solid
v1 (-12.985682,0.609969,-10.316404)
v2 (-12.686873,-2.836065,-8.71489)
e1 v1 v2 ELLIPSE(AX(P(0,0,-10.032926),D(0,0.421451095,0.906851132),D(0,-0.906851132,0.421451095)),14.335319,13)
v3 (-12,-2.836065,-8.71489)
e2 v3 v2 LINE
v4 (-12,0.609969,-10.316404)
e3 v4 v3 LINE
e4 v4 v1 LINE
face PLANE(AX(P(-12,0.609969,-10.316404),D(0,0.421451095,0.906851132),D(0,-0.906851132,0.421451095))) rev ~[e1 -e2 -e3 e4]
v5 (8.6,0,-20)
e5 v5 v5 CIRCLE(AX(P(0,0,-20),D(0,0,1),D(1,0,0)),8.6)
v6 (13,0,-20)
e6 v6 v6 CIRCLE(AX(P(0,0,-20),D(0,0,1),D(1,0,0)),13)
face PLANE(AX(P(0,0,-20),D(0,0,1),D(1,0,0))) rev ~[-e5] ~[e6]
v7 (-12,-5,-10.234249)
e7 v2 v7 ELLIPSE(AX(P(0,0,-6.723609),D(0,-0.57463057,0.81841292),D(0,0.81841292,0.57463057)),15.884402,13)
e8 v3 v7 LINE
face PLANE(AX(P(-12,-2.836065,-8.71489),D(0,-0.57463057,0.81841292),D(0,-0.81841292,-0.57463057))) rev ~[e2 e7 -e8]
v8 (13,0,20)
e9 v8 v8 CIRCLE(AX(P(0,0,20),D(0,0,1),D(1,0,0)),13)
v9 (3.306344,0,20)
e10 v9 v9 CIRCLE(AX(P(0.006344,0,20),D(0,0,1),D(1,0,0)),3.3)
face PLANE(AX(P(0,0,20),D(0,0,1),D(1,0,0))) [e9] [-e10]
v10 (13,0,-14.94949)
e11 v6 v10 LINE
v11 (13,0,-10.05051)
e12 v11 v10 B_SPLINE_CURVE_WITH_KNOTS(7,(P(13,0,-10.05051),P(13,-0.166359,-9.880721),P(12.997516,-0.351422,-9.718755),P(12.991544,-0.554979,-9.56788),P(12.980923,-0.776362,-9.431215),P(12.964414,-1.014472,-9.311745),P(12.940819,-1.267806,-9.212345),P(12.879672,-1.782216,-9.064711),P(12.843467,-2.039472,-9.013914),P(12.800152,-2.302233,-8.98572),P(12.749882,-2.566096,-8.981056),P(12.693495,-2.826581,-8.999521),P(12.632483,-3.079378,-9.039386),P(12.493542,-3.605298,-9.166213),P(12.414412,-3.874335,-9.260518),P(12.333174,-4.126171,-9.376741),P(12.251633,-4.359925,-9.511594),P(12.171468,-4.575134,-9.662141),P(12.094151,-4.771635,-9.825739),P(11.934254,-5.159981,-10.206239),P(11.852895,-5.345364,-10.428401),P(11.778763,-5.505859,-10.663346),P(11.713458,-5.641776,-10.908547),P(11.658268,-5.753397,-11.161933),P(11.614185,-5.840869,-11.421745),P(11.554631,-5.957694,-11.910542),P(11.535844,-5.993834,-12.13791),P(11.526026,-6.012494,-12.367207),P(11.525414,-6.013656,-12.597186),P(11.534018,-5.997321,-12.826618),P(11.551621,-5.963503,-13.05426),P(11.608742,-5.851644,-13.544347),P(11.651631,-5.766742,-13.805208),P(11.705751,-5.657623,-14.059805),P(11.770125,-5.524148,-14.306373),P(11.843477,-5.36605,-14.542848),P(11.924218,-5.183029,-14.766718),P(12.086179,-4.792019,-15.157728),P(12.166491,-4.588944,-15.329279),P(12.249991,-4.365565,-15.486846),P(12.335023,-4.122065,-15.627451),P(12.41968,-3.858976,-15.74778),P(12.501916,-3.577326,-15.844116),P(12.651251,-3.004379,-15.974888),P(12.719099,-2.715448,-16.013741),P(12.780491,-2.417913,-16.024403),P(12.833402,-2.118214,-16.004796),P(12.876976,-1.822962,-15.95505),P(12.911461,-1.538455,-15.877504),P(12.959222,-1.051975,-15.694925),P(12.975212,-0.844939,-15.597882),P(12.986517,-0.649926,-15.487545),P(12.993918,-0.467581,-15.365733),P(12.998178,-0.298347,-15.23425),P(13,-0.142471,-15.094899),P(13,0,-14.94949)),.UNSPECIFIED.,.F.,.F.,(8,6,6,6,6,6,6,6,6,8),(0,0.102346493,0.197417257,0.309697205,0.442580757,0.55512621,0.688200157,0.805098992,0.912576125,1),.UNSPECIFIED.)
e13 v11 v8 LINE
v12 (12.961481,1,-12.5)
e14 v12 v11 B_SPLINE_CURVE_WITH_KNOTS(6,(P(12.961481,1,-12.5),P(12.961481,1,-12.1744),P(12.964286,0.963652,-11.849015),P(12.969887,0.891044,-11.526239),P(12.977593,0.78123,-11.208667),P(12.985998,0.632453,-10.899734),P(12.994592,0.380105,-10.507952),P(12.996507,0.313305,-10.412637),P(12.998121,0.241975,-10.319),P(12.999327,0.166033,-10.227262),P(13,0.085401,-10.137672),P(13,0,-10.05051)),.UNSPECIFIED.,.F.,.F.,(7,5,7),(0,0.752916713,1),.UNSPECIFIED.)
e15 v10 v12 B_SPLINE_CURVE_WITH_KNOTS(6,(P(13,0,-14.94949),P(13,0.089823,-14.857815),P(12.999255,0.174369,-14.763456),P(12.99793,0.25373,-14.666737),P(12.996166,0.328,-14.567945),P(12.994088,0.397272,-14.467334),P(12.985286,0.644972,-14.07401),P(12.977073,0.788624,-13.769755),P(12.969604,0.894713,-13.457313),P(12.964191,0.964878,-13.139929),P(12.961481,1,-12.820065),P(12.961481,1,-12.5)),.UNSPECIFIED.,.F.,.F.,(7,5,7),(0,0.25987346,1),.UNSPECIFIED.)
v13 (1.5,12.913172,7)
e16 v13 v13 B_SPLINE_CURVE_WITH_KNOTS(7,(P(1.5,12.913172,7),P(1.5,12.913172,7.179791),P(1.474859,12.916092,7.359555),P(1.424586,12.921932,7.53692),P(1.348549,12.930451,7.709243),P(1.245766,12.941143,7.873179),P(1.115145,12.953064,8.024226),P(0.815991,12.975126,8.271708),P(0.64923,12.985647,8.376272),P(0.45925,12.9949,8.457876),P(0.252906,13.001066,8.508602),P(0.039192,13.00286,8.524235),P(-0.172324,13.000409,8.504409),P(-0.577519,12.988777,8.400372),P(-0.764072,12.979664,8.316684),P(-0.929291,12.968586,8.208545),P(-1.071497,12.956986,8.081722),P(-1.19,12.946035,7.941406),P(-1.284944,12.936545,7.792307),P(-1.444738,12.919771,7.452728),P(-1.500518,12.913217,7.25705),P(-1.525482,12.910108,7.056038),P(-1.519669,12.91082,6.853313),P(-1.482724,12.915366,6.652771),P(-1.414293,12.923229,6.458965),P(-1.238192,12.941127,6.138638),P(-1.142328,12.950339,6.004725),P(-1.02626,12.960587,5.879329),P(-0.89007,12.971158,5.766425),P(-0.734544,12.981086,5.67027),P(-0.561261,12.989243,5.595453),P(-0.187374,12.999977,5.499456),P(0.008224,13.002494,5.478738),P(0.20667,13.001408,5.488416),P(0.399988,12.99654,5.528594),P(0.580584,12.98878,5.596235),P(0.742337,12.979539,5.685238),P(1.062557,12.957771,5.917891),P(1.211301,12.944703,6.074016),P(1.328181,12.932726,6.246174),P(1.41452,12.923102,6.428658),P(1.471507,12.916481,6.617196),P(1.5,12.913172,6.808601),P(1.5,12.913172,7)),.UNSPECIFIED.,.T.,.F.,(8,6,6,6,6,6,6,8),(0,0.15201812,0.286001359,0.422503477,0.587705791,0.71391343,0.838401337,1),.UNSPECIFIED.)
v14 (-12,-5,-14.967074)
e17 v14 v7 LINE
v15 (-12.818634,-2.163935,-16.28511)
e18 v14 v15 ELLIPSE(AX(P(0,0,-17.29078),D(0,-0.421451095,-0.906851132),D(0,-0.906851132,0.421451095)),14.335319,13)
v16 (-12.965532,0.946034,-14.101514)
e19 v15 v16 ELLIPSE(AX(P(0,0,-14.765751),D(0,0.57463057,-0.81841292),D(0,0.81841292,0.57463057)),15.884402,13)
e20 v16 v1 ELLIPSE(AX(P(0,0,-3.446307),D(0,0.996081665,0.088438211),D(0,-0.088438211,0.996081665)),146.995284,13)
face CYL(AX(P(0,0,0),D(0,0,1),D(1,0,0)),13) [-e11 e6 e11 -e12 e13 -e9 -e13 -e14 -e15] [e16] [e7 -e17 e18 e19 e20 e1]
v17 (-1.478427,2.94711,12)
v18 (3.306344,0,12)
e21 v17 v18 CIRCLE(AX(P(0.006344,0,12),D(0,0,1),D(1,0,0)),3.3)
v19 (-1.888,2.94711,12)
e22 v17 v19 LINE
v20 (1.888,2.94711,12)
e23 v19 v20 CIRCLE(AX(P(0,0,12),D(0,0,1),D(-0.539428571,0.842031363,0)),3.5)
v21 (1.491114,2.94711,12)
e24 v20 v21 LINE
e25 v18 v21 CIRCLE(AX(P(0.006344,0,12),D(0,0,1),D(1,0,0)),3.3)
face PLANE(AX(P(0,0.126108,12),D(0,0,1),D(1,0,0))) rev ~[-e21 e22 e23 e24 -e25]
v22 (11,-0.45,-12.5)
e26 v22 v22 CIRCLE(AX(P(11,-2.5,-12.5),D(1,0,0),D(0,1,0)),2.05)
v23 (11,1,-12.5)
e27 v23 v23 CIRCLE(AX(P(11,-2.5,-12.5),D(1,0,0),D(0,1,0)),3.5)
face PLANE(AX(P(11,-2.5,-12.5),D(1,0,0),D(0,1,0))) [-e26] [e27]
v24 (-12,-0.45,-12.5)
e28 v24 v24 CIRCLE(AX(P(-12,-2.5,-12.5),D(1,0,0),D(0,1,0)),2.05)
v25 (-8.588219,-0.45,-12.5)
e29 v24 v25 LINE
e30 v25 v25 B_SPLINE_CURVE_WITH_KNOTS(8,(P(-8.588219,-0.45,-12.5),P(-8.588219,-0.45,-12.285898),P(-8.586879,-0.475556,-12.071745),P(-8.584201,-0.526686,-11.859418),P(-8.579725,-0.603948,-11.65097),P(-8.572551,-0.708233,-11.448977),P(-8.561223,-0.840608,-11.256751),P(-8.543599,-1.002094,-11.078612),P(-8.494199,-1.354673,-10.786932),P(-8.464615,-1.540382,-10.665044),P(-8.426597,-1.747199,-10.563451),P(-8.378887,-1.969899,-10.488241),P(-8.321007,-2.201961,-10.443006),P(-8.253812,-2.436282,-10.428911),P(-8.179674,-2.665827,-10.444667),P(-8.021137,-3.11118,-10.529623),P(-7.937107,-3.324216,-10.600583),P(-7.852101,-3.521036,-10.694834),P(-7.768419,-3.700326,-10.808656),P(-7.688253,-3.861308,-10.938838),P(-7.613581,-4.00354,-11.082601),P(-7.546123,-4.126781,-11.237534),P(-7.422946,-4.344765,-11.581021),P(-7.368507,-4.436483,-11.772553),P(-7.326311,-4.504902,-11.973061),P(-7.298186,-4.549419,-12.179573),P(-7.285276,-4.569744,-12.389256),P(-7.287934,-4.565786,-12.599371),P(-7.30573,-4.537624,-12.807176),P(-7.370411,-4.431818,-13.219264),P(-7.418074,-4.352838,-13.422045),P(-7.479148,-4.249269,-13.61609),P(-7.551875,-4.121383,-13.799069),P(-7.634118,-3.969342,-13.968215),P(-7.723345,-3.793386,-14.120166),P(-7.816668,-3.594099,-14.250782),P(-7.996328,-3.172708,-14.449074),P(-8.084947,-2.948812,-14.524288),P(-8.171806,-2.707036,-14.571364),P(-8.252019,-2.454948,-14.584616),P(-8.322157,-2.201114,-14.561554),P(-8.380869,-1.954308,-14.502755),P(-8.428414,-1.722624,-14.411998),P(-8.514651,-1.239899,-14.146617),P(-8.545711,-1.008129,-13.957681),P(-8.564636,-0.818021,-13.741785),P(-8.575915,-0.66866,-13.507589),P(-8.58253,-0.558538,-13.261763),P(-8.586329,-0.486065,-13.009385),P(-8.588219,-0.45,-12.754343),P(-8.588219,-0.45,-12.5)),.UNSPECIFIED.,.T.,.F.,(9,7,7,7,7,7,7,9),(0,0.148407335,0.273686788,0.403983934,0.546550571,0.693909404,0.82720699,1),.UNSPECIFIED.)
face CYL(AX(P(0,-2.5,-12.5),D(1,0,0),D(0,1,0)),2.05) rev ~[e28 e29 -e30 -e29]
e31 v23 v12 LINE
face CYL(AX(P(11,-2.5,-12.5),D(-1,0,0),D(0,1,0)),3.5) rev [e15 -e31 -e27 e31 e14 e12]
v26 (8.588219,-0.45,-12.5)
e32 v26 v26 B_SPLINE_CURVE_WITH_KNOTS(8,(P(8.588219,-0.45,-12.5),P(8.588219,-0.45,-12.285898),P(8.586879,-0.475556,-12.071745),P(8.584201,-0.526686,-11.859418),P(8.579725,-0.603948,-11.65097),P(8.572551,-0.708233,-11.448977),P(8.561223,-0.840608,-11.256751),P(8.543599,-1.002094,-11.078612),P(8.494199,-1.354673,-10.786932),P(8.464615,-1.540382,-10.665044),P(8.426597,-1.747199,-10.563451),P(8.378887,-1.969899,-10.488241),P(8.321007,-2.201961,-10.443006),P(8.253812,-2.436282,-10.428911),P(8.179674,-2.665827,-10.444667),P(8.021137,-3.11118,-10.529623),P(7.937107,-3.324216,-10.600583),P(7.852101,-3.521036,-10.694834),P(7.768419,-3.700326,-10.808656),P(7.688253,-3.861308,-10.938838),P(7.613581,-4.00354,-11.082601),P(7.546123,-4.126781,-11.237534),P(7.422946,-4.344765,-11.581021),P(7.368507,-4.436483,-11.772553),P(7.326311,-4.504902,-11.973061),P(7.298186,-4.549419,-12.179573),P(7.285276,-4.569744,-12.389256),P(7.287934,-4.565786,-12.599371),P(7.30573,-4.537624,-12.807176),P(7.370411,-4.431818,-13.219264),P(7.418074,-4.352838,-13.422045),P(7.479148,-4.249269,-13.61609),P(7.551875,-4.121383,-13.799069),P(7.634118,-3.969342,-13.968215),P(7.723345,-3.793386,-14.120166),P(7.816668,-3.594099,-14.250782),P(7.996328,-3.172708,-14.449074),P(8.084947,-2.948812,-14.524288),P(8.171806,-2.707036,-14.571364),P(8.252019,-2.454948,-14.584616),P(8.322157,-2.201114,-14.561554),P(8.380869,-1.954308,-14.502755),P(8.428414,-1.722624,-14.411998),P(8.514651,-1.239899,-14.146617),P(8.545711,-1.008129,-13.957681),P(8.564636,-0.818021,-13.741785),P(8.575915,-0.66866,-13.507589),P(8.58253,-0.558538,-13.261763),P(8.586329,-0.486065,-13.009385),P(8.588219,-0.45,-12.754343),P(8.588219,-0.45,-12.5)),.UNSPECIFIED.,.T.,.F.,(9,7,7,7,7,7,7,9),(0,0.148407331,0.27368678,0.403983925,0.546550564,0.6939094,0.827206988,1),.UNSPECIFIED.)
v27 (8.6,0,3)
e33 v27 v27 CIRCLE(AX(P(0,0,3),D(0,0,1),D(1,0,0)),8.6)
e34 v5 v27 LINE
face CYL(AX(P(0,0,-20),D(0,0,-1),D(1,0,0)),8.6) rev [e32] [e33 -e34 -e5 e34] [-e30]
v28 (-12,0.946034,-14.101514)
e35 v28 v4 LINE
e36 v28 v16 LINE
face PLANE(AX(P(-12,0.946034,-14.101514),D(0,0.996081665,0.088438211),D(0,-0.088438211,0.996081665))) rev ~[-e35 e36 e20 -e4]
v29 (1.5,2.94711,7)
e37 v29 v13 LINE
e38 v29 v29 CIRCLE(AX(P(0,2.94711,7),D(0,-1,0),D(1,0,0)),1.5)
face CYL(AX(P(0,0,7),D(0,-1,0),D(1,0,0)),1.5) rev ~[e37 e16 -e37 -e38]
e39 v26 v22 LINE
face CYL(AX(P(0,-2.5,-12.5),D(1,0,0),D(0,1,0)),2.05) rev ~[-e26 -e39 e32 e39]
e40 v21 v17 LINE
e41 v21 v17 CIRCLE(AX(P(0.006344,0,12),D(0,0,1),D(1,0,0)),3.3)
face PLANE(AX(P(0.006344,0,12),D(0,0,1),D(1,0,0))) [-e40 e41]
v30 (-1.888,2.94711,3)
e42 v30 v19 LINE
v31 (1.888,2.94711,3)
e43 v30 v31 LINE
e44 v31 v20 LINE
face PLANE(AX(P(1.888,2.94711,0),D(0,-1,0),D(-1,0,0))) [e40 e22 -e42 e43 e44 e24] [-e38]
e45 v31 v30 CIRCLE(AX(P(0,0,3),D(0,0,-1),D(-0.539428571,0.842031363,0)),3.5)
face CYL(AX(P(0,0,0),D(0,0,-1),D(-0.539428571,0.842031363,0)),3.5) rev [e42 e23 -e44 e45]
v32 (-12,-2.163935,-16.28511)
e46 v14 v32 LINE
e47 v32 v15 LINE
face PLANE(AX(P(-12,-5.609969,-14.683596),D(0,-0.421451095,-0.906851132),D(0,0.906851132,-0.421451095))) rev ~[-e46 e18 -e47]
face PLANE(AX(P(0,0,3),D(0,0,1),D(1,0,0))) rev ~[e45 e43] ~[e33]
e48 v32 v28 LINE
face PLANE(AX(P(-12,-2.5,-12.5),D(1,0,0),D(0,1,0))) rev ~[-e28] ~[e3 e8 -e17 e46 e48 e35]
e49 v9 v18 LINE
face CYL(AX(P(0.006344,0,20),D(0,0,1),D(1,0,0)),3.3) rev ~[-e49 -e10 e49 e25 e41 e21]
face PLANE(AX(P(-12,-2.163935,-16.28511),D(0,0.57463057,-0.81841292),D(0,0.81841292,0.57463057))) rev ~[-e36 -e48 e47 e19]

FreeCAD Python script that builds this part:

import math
import FreeCAD as App
import Part
import Sketcher

V = App.Vector
Q = App.Units.Quantity


def add_polygon(sketch, points):
    """Adds a closed chain of lines whose ends are joined by coincident constraints."""
    first, n = sketch.GeometryCount, len(points)
    for a, b in zip(points, points[1:] + points[:1]):
        sketch.addGeometry(Part.LineSegment(App.Vector(*a, 0), App.Vector(*b, 0)), False)
    for i in range(n):
        sketch.addConstraint(Sketcher.Constraint("Coincident", first + i, 2, first + (i + 1) % n, 1))

doc = App.newDocument("Part")
params = doc.addObject("Spreadsheet::Sheet", "Params")
for row, (alias, value) in enumerate([
    ("sketch1_diameter", "26 mm"),
    ("pad1_length", "40 mm"),
    ("sketch2_diameter", "17.2 mm"),
    ("pocket1_length", "23 mm"),
    ("sketch3_diameter", "6.6 mm"),
    ("pocket2_length", "8 mm"),
    ("sketch4_radius", "3.5 mm"),
    ("pocket3_length", "12 mm"),
    ("sketch5_diameter", "4.1 mm"),
    ("pocket4_length", "30 mm"),
    ("sketch6_diameter", "3 mm"),
    ("pocket5_length", "25 mm"),
    ("sketch7_diameter", "7 mm"),
    ("pocket6_length", "5 mm"),
    ("sketch8_length", "3.8 mm"),
    ("pocket7_length", "3 mm"),
], start=1):
    params.set(f"A{row}", alias)
    params.set(f"B{row}", "=" + value)
    params.setAlias(f"B{row}", alias)

body = doc.addObject("PartDesign::Body", "Body")

sketch1 = doc.addObject("Sketcher::SketchObject", "Sketch")
body.addObject(sketch1)
sketch1.AttachmentSupport = (doc.XY_Plane, [""])
sketch1.MapMode = "FlatFace"
sketch1.addGeometry(Part.Circle(V(0, 0, 0), V(0, 0, 1), 13), False)
sketch1.addConstraint([
    Sketcher.Constraint("Coincident", 0, 3, -1, 1),
    Sketcher.Constraint("Diameter", 0, Q("26 mm")),
])
sketch1.setExpression("Constraints[1]", "Params.sketch1_diameter")
pad1 = doc.addObject("PartDesign::Pad", "Pad")
body.addObject(pad1)
pad1.Profile = sketch1
pad1.setExpression("Length", "Params.pad1_length")
pad1.Midplane = True

sketch2 = doc.addObject("Sketcher::SketchObject", "Sketch001")
body.addObject(sketch2)
sketch2.AttachmentSupport = (doc.XY_Plane, [""])
sketch2.MapMode = "FlatFace"
sketch2.AttachmentOffset = App.Placement(V(0, 0, -20), App.Rotation())
sketch2.addGeometry(Part.Circle(V(0, 0, 0), V(0, 0, 1), 9), False)
sketch2.addConstraint([
    Sketcher.Constraint("Coincident", 0, 3, -1, 1),
    Sketcher.Constraint("Diameter", 0, Q("17.2 mm")),
])
sketch2.setExpression("Constraints[1]", "Params.sketch2_diameter")
pocket1 = doc.addObject("PartDesign::Pocket", "Pocket")
body.addObject(pocket1)
pocket1.Profile = sketch2
pocket1.setExpression("Length", "Params.pocket1_length")
pocket1.Reversed = True

sketch3 = doc.addObject("Sketcher::SketchObject", "Sketch002")
body.addObject(sketch3)
sketch3.AttachmentSupport = (doc.XY_Plane, [""])
sketch3.MapMode = "FlatFace"
sketch3.AttachmentOffset = App.Placement(V(0, 0, 20), App.Rotation())
sketch3.addGeometry(Part.Circle(V(0, 0, 0), V(0, 0, 1), 3.3), False)
sketch3.addConstraint([
    Sketcher.Constraint("PointOnObject", 0, 3, -1),
    Sketcher.Constraint("Diameter", 0, Q("6.6 mm")),
    Sketcher.Constraint("DistanceX", -1, 1, 0, 3, Q("0.006344 mm")),
])
sketch3.setExpression("Constraints[1]", "Params.sketch3_diameter")
pocket2 = doc.addObject("PartDesign::Pocket", "Pocket001")
body.addObject(pocket2)
pocket2.Profile = sketch3
pocket2.setExpression("Length", "Params.pocket2_length")

sketch4 = doc.addObject("Sketcher::SketchObject", "Sketch003")
body.addObject(sketch4)
sketch4.AttachmentSupport = (doc.XY_Plane, [""])
sketch4.MapMode = "FlatFace"
sketch4.addGeometry([
    Part.LineSegment(V(1.9, 2.9, 0), V(-1.9, 2.9, 0)),
    Part.ArcOfCircle(Part.Circle(V(0, 0, 0), V(0, 0, 1), 3.5), math.radians(123), math.radians(417)),
], False)
sketch4.addConstraint([
    Sketcher.Constraint("Coincident", 0, 1, 1, 2),
    Sketcher.Constraint("Coincident", 1, 1, 0, 2),
    Sketcher.Constraint("Horizontal", 0),
    Sketcher.Constraint("Coincident", 1, 3, -1, 1),
    Sketcher.Constraint("Radius", 1, Q("3.5 mm")),
    Sketcher.Constraint("DistanceX", 0, 2, 0, 1, Q("3.776 mm")),
])
sketch4.setExpression("Constraints[4]", "Params.sketch4_radius")
pocket3 = doc.addObject("PartDesign::Pocket", "Pocket002")
body.addObject(pocket3)
pocket3.Profile = sketch4
pocket3.setExpression("Length", "Params.pocket3_length")
pocket3.Reversed = True

sketch5 = doc.addObject("Sketcher::SketchObject", "Sketch004")
body.addObject(sketch5)
sketch5.AttachmentSupport = (doc.YZ_Plane, [""])
sketch5.MapMode = "FlatFace"
sketch5.addGeometry(Part.Circle(V(-2.5, -12.5, 0), V(0, 0, 1), 2), False)
sketch5.addConstraint([
    Sketcher.Constraint("Diameter", 0, Q("4.1 mm")),
    Sketcher.Constraint("DistanceX", 0, 3, -1, 1, Q("2.5 mm")),
    Sketcher.Constraint("DistanceY", 0, 3, -1, 1, Q("12.5 mm")),
])
sketch5.setExpression("Constraints[0]", "Params.sketch5_diameter")
pocket4 = doc.addObject("PartDesign::Pocket", "Pocket003")
body.addObject(pocket4)
pocket4.Profile = sketch5
pocket4.setExpression("Length", "Params.pocket4_length")
pocket4.Midplane = True

sketch6 = doc.addObject("Sketcher::SketchObject", "Sketch005")
body.addObject(sketch6)
sketch6.AttachmentSupport = (doc.XZ_Plane, [""])
sketch6.MapMode = "FlatFace"
sketch6.addGeometry(Part.Circle(V(0, 7, 0), V(0, 0, 1), 1.5), False)
sketch6.addConstraint([
    Sketcher.Constraint("PointOnObject", 0, 3, -2),
    Sketcher.Constraint("Diameter", 0, Q("3 mm")),
    Sketcher.Constraint("DistanceY", -1, 1, 0, 3, Q("7 mm")),
])
sketch6.setExpression("Constraints[1]", "Params.sketch6_diameter")
pocket5 = doc.addObject("PartDesign::Pocket", "Pocket004")
body.addObject(pocket5)
pocket5.Profile = sketch6
pocket5.setExpression("Length", "Params.pocket5_length")

sketch7 = doc.addObject("Sketcher::SketchObject", "Sketch006")
body.addObject(sketch7)
sketch7.AttachmentSupport = (doc.YZ_Plane, [""])
sketch7.MapMode = "FlatFace"
sketch7.AttachmentOffset = App.Placement(V(0, 0, 11), App.Rotation())
sketch7.addGeometry(Part.Circle(V(-2.5, -12.5, 0), V(0, 0, 1), 3.5), False)
sketch7.addConstraint([
    Sketcher.Constraint("Diameter", 0, Q("7 mm")),
    Sketcher.Constraint("DistanceX", 0, 3, -1, 1, Q("2.5 mm")),
    Sketcher.Constraint("DistanceY", 0, 3, -1, 1, Q("12.5 mm")),
])
sketch7.setExpression("Constraints[0]", "Params.sketch7_diameter")
pocket6 = doc.addObject("PartDesign::Pocket", "Pocket005")
body.addObject(pocket6)
pocket6.Profile = sketch7
pocket6.setExpression("Length", "Params.pocket6_length")
pocket6.Reversed = True

sketch8 = doc.addObject("Sketcher::SketchObject", "Sketch007")
body.addObject(sketch8)
sketch8.AttachmentSupport = (doc.YZ_Plane, [""])
sketch8.MapMode = "FlatFace"
sketch8.AttachmentOffset = App.Placement(V(0, 0, -12), App.Rotation())
add_polygon(sketch8, [(-5.9, -10.9), (-5.6, -14.7), (-2.2, -16.3), (0.9, -14.1), (0.6, -10.3), (-2.8, -8.7)])
sketch8.addConstraint([
    Sketcher.Constraint("Parallel", 0, 3),
    Sketcher.Constraint("Parallel", 1, 4),
    Sketcher.Constraint("Parallel", 2, 5),
    Sketcher.Constraint("Equal", 0, 1),
    Sketcher.Constraint("Equal", 1, 2),
    Sketcher.Constraint("Equal", 2, 3),
    Sketcher.Constraint("Distance", 0, Q("3.8 mm")),
    Sketcher.Constraint("DistanceX", 4, 2, 2, 2, Q("3.7821 mm")),
    Sketcher.Constraint("DistanceX", 0, 2, -1, 1, Q("5.609969 mm")),
    Sketcher.Constraint("DistanceY", 1, 2, -1, 1, Q("16.28511 mm")),
    Sketcher.Constraint("DistanceX", -1, 1, 3, 2, Q("0.609969 mm")),
    Sketcher.Constraint("DistanceY", 4, 2, -1, 1, Q("8.71489 mm")),
])
sketch8.setExpression("Constraints[12]", "Params.sketch8_length")
pocket7 = doc.addObject("PartDesign::Pocket", "Pocket006")
body.addObject(pocket7)
pocket7.Profile = sketch8
pocket7.setExpression("Length", "Params.pocket7_length")

doc.recompute()
